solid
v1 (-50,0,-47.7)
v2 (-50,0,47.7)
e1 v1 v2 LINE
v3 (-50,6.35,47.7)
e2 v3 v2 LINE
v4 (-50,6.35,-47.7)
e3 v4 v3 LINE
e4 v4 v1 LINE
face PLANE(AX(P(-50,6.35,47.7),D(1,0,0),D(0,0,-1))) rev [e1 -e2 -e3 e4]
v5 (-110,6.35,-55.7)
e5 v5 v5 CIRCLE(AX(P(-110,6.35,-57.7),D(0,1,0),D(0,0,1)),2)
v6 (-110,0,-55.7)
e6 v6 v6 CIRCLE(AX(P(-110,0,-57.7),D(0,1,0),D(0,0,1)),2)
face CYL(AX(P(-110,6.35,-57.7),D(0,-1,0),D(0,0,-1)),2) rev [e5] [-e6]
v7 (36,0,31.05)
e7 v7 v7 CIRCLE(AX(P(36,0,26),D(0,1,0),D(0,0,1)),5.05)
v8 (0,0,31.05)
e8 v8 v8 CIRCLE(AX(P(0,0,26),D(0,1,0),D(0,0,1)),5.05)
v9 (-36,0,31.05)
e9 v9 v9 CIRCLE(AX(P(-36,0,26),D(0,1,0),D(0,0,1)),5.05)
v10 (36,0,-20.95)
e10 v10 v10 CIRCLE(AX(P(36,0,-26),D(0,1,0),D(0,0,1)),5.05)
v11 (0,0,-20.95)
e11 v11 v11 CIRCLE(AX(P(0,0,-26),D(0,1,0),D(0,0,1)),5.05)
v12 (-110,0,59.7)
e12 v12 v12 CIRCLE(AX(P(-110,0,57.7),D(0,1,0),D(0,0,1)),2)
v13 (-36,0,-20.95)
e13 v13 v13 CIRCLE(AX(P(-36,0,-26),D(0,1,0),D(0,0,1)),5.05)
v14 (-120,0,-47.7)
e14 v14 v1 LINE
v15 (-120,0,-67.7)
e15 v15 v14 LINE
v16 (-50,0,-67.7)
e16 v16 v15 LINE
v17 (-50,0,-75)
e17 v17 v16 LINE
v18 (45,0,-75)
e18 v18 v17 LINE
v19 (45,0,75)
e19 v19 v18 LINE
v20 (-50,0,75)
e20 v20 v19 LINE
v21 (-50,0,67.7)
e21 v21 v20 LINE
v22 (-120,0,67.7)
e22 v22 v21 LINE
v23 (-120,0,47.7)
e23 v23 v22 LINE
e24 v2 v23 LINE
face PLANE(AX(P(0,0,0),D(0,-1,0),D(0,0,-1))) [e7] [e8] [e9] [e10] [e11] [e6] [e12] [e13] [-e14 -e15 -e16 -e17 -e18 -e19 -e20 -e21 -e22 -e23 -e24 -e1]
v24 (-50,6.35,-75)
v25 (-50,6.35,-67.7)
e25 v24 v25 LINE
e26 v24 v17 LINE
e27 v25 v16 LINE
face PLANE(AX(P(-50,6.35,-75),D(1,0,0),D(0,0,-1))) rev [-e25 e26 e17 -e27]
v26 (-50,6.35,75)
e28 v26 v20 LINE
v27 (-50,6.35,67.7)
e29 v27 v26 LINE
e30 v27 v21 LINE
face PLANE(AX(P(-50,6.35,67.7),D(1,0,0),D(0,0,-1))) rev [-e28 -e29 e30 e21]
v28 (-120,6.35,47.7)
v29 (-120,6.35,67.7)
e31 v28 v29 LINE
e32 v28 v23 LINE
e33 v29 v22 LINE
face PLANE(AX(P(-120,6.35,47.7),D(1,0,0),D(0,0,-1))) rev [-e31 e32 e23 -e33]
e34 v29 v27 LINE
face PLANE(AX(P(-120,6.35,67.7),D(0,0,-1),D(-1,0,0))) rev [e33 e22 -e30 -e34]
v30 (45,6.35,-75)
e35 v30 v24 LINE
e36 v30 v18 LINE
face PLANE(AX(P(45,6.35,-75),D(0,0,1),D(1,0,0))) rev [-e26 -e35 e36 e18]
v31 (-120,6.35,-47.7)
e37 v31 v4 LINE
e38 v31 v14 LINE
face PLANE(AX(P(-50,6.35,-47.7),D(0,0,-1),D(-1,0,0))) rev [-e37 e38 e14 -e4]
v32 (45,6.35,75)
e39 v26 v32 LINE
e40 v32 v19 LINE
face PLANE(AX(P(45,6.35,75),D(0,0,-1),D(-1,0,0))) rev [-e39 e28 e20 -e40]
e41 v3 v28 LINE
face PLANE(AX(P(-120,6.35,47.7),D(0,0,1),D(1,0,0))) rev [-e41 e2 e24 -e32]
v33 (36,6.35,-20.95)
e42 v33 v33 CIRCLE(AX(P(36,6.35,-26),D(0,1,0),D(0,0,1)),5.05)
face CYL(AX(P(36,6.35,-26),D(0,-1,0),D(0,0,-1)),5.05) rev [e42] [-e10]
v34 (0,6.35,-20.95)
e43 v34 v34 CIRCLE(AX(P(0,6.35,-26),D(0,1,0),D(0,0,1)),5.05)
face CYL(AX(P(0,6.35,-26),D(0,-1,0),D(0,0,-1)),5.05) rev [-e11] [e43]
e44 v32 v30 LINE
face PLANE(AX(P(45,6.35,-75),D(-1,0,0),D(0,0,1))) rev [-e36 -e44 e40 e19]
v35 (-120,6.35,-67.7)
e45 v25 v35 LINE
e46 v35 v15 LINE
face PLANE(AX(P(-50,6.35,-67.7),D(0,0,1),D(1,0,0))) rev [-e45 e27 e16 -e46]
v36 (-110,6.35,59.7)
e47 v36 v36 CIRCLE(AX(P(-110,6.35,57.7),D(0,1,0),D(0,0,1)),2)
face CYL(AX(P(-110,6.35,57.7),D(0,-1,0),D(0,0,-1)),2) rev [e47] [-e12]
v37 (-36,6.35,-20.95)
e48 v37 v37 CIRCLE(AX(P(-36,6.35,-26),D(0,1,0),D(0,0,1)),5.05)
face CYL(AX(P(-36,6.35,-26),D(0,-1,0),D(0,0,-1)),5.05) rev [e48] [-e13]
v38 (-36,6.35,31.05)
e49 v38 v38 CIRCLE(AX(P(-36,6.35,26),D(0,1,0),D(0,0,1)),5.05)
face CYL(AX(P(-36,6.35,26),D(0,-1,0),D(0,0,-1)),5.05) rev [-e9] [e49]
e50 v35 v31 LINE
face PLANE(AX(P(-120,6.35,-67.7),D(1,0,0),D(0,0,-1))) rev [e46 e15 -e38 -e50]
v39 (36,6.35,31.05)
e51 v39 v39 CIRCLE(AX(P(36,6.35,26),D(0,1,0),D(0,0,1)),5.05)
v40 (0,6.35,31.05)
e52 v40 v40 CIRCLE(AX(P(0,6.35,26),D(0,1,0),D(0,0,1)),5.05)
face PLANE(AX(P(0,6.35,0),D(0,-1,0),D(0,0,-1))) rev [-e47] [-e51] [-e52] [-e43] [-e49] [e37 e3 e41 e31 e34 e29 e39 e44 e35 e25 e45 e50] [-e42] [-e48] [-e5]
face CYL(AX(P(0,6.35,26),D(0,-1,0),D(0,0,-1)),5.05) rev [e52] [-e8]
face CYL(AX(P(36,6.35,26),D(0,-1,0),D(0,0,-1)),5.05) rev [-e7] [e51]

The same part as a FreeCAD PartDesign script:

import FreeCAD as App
import Part
import Sketcher

V = App.Vector
Q = App.Units.Quantity


def add_polygon(sketch, points):
    """Adds a closed chain of lines whose ends are joined by coincident constraints."""
    first, n = sketch.GeometryCount, len(points)
    for a, b in zip(points, points[1:] + points[:1]):
        sketch.addGeometry(Part.LineSegment(App.Vector(*a, 0), App.Vector(*b, 0)), False)
    for i in range(n):
        sketch.addConstraint(Sketcher.Constraint("Coincident", first + i, 2, first + (i + 1) % n, 1))

doc = App.newDocument("Part")
params = doc.addObject("Spreadsheet::Sheet", "Params")
for row, (alias, value) in enumerate([
    ("sketch1_diameter", "4 mm"),
    ("sketch1_diameter2", "10.1 mm"),
    ("sketch1_width", "70 mm"),
    ("sketch1_width2", "95 mm"),
    ("sketch1_height", "20 mm"),
    ("pad1_length", "6.35 mm"),
], start=1):
    params.set(f"A{row}", alias)
    params.set(f"B{row}", "=" + value)
    params.setAlias(f"B{row}", alias)

body = doc.addObject("PartDesign::Body", "Body")

# Sketch on XZ plane
sketch1 = body.newObject("Sketcher::SketchObject", "Sketch")
sketch1.AttachmentSupport = (doc.getObject("XZ_Plane"), [""])
sketch1.MapMode = "FlatFace"
add_polygon(sketch1, [(-50, 47.7), (-120, 47.7), (-120, 67.7), (-50, 67.7), (-50, 75), (45, 75), (45, -75), (-50, -75), (-50, -67.7), (-120, -67.7), (-120, -47.7), (-50, -47.7)])  # lines 0-11
sketch1.addGeometry(Part.Circle(V(36, 26, 0), V(0, 0, 1), 5), False)  # 12
sketch1.addGeometry(Part.Circle(V(0, 26, 0), V(0, 0, 1), 5), False)  # 13
sketch1.addGeometry(Part.Circle(V(-110, 57.7, 0), V(0, 0, 1), 2), False)  # 14
sketch1.addGeometry(Part.Circle(V(-36, 26, 0), V(0, 0, 1), 5), False)  # 15
sketch1.addGeometry(Part.Circle(V(36, -26, 0), V(0, 0, 1), 5), False)  # 16
sketch1.addGeometry(Part.Circle(V(0, -26, 0), V(0, 0, 1), 5), False)  # 17
sketch1.addGeometry(Part.Circle(V(-36, -26, 0), V(0, 0, 1), 5), False)  # 18
sketch1.addGeometry(Part.Circle(V(-110, -57.7, 0), V(0, 0, 1), 2), False)  # 19
sketch1.addConstraint([
    Sketcher.Constraint("Horizontal", 0),
    Sketcher.Constraint("Vertical", 1),
    Sketcher.Constraint("Horizontal", 2),
    Sketcher.Constraint("Vertical", 3),
    Sketcher.Constraint("Horizontal", 4),
    Sketcher.Constraint("Vertical", 5),
    Sketcher.Constraint("Horizontal", 6),
    Sketcher.Constraint("Vertical", 7),
    Sketcher.Constraint("Horizontal", 8),
    Sketcher.Constraint("Vertical", 9),
    Sketcher.Constraint("Horizontal", 10),
    Sketcher.Constraint("Vertical", 11),
    Sketcher.Constraint("Equal", 12, 13),
    Sketcher.Constraint("Equal", 13, 15),
    Sketcher.Constraint("Equal", 15, 16),
    Sketcher.Constraint("Equal", 16, 17),
    Sketcher.Constraint("Equal", 17, 18),
    Sketcher.Constraint("Equal", 14, 19),
    Sketcher.Constraint("Symmetric", 15, 3, 16, 3, -1, 1),
    Sketcher.Constraint("Symmetric", 13, 3, 17, 3, -1, 1),
    Sketcher.Constraint("Symmetric", 12, 3, 18, 3, -1, 1),
    Sketcher.Constraint("Symmetric", 12, 3, 15, 3, -2),
    Sketcher.Constraint("Symmetric", 14, 3, 19, 3, -1),
    Sketcher.Constraint("Symmetric", 3, 2, 6, 2, -1),
    Sketcher.Constraint("Symmetric", 1, 2, 8, 2, -1),
    Sketcher.Constraint("PointOnObject", 13, 3, -2),
    Sketcher.Constraint("Horizontal", 12, 3, 13, 3),
    Sketcher.Constraint("Vertical", 7, 2, 10, 2),
    Sketcher.Constraint("Equal", 1, 9),
    Sketcher.Constraint("Diameter", 14, Q("4 mm")),
    Sketcher.Constraint("Diameter", 12, Q("10.1 mm")),
    Sketcher.Constraint("DistanceX", 0, 2, 0, 1, Q("70 mm")),
    Sketcher.Constraint("DistanceX", 4, 1, 4, 2, Q("95 mm")),
    Sketcher.Constraint("DistanceY", 1, 1, 1, 2, Q("20 mm")),
    Sketcher.Constraint("DistanceY", 5, 2, 5, 1, Q("150 mm")),
    Sketcher.Constraint("DistanceY", 3, 1, 3, 2, Q("7.3 mm")),
    Sketcher.Constraint("DistanceX", -1, 1, 12, 3, Q("36 mm")),
    Sketcher.Constraint("DistanceY", -1, 1, 12, 3, Q("26 mm")),
    Sketcher.Constraint("DistanceX", 14, 3, -1, 1, Q("110 mm")),
    Sketcher.Constraint("DistanceX", 0, 2, -1, 1, Q("120 mm")),
    Sketcher.Constraint("DistanceY", 0, 2, 14, 3, Q("10 mm")),
])
sketch1.setExpression("Constraints[41]", "Params.sketch1_diameter")
sketch1.setExpression("Constraints[42]", "Params.sketch1_diameter2")
sketch1.setExpression("Constraints[43]", "Params.sketch1_width")
sketch1.setExpression("Constraints[44]", "Params.sketch1_width2")
sketch1.setExpression("Constraints[45]", "Params.sketch1_height")
pad1 = body.newObject("PartDesign::Pad", "Pad")
pad1.Profile = sketch1
pad1.setExpression("Length", "Params.pad1_length")
pad1.Reversed = True

doc.recompute()
